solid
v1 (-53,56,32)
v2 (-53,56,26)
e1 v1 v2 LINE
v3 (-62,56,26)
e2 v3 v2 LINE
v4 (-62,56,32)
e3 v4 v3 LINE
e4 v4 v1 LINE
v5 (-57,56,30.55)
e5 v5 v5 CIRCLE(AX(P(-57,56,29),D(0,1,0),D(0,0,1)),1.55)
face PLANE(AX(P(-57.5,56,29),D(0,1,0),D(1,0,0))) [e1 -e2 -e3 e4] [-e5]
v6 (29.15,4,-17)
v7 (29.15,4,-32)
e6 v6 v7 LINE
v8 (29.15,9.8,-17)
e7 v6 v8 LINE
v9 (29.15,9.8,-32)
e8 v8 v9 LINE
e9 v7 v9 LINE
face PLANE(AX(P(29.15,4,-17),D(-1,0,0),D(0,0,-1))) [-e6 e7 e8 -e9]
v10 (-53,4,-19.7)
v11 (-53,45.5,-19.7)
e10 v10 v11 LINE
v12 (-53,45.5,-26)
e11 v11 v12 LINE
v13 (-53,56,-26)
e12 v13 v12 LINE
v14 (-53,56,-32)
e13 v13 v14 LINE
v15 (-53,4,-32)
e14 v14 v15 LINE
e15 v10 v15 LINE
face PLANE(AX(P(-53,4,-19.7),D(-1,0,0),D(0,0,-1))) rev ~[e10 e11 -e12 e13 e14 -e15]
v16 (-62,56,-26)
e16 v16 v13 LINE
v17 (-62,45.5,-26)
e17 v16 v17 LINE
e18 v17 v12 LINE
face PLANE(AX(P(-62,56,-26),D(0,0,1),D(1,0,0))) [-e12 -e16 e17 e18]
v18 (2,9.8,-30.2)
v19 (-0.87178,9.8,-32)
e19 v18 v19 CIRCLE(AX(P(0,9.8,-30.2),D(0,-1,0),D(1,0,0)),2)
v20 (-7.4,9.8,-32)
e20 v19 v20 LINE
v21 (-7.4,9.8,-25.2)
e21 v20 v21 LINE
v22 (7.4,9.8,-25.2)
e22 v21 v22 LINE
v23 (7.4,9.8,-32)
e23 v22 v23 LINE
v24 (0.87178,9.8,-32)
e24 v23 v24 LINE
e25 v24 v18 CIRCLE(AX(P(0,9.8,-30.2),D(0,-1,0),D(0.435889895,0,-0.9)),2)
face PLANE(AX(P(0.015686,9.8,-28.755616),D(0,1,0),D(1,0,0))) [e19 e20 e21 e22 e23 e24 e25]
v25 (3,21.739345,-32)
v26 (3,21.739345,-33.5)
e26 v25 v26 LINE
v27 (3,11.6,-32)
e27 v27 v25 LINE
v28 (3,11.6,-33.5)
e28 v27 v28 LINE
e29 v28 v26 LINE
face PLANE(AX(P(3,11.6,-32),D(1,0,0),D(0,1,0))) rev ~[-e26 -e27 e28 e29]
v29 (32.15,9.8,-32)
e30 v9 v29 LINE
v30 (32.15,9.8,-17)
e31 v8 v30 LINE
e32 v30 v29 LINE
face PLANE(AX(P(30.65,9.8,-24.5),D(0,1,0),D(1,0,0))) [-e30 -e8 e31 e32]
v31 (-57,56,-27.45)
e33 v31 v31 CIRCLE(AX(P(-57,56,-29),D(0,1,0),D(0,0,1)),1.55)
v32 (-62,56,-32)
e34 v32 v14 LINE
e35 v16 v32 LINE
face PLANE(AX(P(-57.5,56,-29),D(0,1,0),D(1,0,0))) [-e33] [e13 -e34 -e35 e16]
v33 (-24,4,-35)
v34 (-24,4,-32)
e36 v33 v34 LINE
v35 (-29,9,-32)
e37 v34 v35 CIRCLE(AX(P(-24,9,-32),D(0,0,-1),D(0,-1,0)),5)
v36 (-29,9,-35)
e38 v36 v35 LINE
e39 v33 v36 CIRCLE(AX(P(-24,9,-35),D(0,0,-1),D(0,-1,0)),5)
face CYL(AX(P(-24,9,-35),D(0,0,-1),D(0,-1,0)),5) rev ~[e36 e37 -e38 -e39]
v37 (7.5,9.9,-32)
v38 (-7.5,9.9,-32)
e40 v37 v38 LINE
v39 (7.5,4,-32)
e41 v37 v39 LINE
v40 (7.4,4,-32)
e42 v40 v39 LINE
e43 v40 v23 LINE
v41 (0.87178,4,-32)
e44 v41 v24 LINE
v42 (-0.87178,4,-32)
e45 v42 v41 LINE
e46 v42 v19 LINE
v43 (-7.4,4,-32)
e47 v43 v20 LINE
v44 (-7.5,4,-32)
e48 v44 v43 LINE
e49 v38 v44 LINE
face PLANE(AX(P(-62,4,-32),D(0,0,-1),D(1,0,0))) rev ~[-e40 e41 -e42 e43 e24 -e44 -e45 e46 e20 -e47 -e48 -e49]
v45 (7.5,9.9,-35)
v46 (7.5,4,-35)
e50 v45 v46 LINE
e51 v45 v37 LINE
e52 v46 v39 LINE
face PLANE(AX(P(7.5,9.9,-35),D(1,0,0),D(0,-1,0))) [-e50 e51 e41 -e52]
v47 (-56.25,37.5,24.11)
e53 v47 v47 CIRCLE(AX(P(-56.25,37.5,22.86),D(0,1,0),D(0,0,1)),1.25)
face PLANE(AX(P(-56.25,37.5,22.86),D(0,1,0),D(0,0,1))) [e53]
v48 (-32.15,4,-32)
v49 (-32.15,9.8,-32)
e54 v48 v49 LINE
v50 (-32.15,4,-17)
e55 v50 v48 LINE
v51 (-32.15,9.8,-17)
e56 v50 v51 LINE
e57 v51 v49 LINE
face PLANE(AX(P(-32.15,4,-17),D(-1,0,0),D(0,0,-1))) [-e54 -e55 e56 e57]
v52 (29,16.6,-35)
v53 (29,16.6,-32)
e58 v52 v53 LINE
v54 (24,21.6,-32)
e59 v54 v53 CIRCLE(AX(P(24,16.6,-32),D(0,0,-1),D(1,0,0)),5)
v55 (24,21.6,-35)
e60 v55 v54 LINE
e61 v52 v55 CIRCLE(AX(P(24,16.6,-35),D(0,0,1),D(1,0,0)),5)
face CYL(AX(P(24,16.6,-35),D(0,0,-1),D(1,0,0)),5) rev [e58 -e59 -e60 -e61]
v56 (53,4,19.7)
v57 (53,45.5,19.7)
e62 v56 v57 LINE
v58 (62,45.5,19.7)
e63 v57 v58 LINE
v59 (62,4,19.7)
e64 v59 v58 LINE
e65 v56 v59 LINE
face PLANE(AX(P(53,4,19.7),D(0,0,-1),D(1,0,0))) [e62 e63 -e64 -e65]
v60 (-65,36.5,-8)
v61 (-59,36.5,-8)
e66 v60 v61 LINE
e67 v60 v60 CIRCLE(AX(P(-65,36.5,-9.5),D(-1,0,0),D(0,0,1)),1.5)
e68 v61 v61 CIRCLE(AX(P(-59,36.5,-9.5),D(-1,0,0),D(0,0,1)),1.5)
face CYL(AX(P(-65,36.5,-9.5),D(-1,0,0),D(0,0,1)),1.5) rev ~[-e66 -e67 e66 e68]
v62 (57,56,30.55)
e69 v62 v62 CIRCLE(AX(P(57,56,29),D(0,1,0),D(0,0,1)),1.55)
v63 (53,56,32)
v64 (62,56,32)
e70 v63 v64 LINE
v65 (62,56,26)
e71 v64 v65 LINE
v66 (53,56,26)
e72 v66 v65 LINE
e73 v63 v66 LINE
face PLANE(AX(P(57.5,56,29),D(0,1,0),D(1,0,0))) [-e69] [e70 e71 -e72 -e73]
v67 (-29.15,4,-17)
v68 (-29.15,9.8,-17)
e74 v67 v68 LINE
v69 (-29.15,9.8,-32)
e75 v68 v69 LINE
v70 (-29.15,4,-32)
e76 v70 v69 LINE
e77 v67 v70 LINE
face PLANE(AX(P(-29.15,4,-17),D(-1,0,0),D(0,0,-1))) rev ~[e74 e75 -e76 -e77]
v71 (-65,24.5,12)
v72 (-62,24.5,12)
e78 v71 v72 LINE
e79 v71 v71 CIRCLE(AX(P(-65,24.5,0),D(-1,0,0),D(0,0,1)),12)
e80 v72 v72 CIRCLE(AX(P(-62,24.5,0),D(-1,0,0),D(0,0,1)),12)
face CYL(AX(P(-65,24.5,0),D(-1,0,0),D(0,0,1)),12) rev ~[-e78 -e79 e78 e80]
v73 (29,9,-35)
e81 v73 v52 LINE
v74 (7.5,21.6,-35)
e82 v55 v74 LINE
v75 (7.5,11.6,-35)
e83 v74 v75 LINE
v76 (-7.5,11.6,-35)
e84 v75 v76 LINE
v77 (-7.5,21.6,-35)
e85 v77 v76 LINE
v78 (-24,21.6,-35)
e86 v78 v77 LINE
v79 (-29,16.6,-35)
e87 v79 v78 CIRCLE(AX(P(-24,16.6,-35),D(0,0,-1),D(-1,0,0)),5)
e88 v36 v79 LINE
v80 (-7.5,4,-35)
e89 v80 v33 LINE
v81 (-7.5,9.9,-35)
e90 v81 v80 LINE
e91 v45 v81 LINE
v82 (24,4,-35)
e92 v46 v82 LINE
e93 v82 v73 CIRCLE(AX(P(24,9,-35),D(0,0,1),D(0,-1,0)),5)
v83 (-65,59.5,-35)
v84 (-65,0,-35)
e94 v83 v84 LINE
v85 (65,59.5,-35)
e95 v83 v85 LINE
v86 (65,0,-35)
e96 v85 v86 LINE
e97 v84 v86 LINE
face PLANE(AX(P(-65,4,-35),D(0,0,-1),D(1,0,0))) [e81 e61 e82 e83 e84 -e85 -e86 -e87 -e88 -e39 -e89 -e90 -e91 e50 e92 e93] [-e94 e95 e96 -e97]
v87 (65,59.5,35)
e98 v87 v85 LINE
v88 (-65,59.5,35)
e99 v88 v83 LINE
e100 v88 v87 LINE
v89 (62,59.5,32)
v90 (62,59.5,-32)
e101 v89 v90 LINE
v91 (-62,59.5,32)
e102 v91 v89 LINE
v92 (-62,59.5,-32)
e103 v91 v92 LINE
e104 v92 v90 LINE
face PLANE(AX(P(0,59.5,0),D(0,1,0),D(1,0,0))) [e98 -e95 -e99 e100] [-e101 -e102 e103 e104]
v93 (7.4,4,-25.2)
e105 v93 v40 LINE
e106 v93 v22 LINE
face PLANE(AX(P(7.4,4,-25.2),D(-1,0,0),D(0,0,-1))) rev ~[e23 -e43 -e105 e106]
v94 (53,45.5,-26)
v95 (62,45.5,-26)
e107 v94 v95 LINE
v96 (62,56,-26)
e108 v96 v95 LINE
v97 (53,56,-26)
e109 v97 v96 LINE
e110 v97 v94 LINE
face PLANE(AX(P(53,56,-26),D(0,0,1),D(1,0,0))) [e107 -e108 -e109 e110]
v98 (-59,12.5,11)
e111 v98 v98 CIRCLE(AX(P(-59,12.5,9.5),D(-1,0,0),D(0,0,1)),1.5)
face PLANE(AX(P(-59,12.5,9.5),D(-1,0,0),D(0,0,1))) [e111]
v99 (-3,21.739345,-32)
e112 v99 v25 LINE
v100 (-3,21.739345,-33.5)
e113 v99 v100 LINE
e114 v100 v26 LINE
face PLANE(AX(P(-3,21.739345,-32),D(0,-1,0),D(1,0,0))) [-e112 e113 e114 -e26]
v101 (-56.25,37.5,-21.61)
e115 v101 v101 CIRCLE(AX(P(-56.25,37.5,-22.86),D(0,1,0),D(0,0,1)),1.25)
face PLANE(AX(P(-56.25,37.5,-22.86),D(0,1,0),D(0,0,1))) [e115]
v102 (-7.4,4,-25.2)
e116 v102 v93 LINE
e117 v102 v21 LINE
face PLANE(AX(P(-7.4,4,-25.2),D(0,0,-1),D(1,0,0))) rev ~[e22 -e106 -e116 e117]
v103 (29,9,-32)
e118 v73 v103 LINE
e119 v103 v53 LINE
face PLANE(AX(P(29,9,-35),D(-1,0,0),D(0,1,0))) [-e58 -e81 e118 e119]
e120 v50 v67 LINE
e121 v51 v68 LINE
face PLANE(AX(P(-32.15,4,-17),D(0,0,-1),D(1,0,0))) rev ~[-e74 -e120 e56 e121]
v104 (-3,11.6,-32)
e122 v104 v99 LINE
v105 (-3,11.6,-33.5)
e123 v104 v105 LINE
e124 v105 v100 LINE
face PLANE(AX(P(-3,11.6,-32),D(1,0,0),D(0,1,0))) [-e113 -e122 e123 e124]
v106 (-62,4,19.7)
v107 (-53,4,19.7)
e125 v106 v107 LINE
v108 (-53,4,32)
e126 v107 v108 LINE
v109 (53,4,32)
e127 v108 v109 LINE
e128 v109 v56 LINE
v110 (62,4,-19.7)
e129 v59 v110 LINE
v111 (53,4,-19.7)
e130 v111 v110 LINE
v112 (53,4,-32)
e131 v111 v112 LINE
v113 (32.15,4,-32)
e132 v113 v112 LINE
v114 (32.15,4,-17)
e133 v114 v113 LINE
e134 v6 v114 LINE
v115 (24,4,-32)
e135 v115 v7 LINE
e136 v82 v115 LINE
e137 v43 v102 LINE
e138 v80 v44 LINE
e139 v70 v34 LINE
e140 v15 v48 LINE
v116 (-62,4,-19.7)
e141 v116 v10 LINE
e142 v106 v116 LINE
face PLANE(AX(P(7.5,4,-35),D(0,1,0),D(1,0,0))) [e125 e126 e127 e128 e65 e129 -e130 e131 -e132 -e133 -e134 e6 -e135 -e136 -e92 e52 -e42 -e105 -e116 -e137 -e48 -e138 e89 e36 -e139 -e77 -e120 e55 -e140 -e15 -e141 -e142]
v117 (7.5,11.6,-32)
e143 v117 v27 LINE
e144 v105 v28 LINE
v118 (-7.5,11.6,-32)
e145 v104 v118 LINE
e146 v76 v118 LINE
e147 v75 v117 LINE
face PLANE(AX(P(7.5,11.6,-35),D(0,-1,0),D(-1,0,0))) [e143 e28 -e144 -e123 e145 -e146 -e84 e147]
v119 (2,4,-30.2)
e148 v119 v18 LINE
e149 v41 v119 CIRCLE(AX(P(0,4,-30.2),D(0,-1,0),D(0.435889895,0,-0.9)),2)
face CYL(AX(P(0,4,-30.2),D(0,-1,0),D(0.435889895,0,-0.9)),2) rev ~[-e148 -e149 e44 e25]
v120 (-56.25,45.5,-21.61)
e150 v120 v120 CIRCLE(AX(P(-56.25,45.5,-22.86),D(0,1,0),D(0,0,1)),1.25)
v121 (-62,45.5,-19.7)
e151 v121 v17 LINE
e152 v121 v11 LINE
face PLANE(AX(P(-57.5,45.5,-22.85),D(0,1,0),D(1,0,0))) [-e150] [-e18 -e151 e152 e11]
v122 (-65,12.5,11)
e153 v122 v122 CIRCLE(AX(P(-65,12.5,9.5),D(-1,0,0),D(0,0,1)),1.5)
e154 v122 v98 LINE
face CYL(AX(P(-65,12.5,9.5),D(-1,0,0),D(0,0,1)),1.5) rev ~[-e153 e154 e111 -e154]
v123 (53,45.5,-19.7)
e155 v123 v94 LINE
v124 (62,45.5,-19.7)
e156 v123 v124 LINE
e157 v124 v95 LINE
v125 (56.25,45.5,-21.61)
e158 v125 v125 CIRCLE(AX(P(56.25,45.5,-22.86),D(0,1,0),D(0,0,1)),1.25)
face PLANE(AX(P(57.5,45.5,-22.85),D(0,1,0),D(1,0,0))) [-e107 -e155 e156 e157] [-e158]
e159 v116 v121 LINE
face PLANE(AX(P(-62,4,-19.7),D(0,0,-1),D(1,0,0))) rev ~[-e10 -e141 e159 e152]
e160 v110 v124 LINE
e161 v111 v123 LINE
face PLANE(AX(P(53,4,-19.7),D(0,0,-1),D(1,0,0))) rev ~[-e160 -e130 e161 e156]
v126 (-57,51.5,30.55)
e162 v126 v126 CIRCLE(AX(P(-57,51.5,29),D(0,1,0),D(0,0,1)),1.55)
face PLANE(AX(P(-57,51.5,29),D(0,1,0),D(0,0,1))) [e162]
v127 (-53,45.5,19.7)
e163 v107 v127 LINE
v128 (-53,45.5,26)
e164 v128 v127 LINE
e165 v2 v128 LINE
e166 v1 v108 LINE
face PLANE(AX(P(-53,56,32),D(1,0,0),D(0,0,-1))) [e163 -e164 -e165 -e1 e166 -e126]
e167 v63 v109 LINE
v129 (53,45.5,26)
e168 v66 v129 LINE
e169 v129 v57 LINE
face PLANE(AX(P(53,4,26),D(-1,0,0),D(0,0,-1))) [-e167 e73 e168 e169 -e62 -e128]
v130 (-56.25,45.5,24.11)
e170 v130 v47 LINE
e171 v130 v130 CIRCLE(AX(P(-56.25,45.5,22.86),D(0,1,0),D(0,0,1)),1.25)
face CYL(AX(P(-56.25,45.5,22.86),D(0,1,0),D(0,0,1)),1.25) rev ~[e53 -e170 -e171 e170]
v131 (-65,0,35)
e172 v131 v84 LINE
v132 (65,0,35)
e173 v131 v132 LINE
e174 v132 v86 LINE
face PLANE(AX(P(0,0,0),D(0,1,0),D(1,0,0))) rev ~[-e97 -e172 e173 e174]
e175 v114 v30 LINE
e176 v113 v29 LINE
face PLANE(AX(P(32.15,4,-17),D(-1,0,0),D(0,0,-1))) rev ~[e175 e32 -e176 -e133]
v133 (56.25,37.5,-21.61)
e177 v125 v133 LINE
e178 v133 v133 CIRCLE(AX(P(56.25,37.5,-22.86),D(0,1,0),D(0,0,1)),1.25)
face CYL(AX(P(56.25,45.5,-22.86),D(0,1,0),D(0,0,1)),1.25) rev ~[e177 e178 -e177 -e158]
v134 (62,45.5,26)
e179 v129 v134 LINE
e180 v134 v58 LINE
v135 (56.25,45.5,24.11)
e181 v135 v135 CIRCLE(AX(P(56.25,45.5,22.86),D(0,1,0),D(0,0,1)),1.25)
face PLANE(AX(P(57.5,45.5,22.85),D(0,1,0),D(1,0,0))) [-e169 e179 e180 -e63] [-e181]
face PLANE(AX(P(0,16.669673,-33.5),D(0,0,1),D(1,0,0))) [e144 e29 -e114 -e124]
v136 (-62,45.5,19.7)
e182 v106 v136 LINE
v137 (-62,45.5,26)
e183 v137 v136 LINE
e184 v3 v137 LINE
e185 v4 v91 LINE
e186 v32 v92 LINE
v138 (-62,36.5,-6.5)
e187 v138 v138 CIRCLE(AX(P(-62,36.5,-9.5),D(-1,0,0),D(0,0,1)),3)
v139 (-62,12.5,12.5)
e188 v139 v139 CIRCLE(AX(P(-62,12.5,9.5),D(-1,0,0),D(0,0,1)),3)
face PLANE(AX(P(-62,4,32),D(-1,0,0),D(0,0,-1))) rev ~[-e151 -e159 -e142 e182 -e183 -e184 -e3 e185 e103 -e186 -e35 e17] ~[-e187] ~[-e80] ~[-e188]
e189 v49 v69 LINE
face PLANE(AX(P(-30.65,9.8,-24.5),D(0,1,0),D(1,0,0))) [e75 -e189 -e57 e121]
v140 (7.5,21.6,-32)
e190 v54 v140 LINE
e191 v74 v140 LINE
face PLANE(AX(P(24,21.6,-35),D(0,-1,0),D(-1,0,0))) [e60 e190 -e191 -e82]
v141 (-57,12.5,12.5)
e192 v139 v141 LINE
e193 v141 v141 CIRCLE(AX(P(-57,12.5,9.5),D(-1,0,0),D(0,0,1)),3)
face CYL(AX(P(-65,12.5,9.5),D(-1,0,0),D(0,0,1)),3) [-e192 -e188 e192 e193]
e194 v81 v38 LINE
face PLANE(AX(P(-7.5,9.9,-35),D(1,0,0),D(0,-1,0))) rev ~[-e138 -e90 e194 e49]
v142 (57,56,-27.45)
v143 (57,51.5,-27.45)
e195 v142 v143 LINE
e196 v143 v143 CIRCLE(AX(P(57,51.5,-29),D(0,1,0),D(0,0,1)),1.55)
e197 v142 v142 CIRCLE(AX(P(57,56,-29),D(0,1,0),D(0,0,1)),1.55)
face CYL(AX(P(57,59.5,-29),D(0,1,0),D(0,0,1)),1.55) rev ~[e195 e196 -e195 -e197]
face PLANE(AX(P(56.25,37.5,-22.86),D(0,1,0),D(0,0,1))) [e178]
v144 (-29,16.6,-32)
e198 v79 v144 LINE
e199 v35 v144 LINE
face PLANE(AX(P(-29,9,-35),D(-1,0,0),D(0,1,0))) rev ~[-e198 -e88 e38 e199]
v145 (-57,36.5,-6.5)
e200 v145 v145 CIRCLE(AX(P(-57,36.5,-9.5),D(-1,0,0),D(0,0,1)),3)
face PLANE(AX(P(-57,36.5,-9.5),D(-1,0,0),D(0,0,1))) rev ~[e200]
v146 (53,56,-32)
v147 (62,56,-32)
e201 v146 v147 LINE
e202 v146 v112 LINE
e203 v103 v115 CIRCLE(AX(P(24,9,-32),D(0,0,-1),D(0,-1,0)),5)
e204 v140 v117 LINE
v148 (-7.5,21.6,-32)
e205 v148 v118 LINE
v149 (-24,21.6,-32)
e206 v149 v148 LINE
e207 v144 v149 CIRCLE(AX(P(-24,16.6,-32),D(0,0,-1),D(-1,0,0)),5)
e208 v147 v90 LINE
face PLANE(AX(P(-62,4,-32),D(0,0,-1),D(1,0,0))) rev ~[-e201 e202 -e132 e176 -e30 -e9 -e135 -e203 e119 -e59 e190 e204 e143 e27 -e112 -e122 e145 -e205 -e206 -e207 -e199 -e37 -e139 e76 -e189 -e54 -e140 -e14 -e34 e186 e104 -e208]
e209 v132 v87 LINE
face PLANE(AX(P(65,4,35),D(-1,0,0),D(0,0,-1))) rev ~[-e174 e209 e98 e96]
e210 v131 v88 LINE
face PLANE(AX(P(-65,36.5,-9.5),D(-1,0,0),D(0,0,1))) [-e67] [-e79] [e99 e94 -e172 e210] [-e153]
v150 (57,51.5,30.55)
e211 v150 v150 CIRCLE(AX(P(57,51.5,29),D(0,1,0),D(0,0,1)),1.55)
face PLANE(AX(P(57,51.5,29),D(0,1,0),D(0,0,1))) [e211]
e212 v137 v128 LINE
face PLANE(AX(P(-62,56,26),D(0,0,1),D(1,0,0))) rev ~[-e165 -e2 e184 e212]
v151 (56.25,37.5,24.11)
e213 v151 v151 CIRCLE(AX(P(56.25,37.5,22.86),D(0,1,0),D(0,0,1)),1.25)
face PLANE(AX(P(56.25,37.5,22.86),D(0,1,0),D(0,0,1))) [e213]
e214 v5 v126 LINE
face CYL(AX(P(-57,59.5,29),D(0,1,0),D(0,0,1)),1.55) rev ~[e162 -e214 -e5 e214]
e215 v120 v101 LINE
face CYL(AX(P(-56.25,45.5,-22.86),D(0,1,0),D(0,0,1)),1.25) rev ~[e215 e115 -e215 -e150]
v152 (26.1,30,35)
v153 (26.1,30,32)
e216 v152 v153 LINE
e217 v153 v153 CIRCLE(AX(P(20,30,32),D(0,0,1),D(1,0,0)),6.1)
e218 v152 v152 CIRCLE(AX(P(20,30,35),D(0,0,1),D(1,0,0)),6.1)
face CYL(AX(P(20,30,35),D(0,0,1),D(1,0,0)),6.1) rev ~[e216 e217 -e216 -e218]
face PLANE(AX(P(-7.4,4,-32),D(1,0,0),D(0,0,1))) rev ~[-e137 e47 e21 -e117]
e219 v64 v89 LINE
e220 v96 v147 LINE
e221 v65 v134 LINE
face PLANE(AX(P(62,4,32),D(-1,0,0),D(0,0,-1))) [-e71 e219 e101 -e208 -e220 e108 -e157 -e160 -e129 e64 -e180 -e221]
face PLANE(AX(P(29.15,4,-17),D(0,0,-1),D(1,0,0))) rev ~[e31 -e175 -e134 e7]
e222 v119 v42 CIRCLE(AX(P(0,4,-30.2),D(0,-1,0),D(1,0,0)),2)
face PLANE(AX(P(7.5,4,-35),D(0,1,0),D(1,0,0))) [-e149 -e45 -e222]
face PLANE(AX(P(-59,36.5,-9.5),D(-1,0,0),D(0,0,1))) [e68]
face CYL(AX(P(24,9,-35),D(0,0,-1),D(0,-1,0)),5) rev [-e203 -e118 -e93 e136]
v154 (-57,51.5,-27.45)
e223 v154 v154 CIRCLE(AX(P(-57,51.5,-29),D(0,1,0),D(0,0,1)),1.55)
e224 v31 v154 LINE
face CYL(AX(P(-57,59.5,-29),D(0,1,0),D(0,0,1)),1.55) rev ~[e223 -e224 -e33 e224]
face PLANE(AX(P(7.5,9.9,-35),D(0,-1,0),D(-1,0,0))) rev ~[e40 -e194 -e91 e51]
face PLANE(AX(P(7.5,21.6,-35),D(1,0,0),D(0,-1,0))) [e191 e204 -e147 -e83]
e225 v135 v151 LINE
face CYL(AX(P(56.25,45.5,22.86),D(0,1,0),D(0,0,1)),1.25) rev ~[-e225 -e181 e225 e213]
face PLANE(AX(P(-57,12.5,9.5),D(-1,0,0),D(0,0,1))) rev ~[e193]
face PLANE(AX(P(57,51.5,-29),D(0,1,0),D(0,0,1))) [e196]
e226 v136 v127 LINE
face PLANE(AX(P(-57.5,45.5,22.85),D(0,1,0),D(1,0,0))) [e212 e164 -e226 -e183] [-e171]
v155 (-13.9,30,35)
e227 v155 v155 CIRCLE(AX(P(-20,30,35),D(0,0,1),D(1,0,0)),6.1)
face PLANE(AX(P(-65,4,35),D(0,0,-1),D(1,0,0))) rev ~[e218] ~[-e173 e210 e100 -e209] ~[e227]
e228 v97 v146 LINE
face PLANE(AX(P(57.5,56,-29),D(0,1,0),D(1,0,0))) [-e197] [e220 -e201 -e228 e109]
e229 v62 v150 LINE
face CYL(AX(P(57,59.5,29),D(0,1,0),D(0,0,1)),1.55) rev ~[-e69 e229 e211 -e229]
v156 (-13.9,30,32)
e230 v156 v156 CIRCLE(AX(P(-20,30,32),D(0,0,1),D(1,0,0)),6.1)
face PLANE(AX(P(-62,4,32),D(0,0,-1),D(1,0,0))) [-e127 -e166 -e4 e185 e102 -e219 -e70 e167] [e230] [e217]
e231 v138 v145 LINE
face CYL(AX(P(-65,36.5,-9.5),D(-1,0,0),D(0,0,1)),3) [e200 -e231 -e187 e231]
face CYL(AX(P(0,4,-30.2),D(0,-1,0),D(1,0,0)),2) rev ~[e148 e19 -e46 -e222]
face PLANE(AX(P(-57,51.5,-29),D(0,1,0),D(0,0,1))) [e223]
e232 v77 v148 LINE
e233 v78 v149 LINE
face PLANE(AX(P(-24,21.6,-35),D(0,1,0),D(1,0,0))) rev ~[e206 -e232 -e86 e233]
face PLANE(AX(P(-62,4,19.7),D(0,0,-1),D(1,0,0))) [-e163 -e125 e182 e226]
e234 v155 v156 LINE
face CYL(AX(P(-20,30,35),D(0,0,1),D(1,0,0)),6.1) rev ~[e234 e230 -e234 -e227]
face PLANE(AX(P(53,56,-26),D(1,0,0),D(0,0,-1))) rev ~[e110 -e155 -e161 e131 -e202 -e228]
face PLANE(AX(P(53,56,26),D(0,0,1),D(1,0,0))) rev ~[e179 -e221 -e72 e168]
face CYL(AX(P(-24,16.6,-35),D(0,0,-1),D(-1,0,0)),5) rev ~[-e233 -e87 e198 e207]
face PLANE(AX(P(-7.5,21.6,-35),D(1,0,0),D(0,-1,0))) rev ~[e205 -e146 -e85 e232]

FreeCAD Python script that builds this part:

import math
import FreeCAD as App
import Part
import Sketcher
Q = App.Units.Quantity

doc = App.newDocument("Part")
params = doc.addObject("Spreadsheet::Sheet", "Params")
for row, (alias, value) in enumerate([
    ("sketch1_width", "130 mm"),
    ("sketch1_height", "70 mm"),
    ("pad1_length", "4 mm"),
    ("sketch2_width", "130 mm"),
    ("sketch2_width2", "124 mm"),
    ("sketch2_height", "70 mm"),
    ("sketch2_height2", "64 mm"),
    ("pad2_length", "55.5 mm"),
    ("sketch3_radius", "5 mm"),
    ("sketch3_width", "15 mm"),
    ("sketch3_height", "10 mm"),
    ("sketch3_width2", "16.5 mm"),
    ("sketch3_height2", "7.6 mm"),
    ("pocket1_length", "4.8 mm"),
    ("sketch4_radius", "2 mm"),
    ("sketch4_width", "3 mm"),
    ("sketch4_height", "15 mm"),
    ("sketch4_width2", "14.8 mm"),
    ("sketch4_height2", "6.8 mm"),
    ("pad3_length", "5.8 mm"),
    ("sketch5_width", "6 mm"),
    ("pocket2_length", "1.5 mm"),
    ("sketch6_diameter", "6 mm"),
    ("pad4_length", "8 mm"),
    ("sketch7_diameter", "24 mm"),
    ("sketch7_diameter2", "3 mm"),
    ("pocket3_length", "6 mm"),
    ("sketch8_width", "9 mm"),
    ("sketch8_height", "6 mm"),
    ("pad5_length", "52 mm"),
    ("sketch9_width", "9 mm"),
    ("sketch9_height", "6 mm"),
    ("pad6_length", "52 mm"),
    ("sketch10_diameter", "3.1 mm"),
    ("pocket4_length", "8 mm"),
    ("sketch11_diameter", "3.1 mm"),
    ("pocket5_length", "8 mm"),
    ("sketch12_width", "9 mm"),
    ("sketch12_height", "6.3 mm"),
    ("pad7_length", "41.5 mm"),
    ("sketch13_diameter", "12.2 mm"),
    ("pocket6_length", "5 mm"),
    ("sketch14_diameter", "2.5 mm"),
    ("pocket7_length", "8 mm"),
], start=1):
    params.set(f"A{row}", alias)
    params.set(f"B{row}", "=" + value)
    params.setAlias(f"B{row}", alias)

body = doc.addObject("PartDesign::Body", "Body")

# Sketch on XZ plane
sketch1 = body.newObject("Sketcher::SketchObject", "Sketch")
sketch1.AttachmentSupport = (doc.getObject("XZ_Plane"), [""])
sketch1.MapMode = "FlatFace"
sketch1.addGeometry([
    Part.LineSegment(App.Vector(-65, -35, 0), App.Vector(-65, 35, 0)),
    Part.LineSegment(App.Vector(-65, 35, 0), App.Vector(65, 35, 0)),
    Part.LineSegment(App.Vector(65, 35, 0), App.Vector(65, -35, 0)),
    Part.LineSegment(App.Vector(65, -35, 0), App.Vector(-65, -35, 0)),
], False)
sketch1.addConstraint([
    Sketcher.Constraint("Coincident", 0, 2, 1, 1),
    Sketcher.Constraint("Coincident", 1, 2, 2, 1),
    Sketcher.Constraint("Coincident", 2, 2, 3, 1),
    Sketcher.Constraint("Coincident", 3, 2, 0, 1),
    Sketcher.Constraint("Vertical", 0),
    Sketcher.Constraint("Horizontal", 1),
    Sketcher.Constraint("Vertical", 2),
    Sketcher.Constraint("Horizontal", 3),
    Sketcher.Constraint("Symmetric", 0, 2, 2, 2, -1, 1),
    Sketcher.Constraint("DistanceX", 1, 1, 1, 2, Q("130 mm")),
    Sketcher.Constraint("DistanceY", 0, 1, 0, 2, Q("70 mm")),
])
sketch1.setExpression("Constraints[9]", "Params.sketch1_width")
sketch1.setExpression("Constraints[10]", "Params.sketch1_height")
pad1 = body.newObject("PartDesign::Pad", "Pad")
pad1.Profile = sketch1
pad1.setExpression("Length", "Params.pad1_length")
pad1.Reversed = True

# Sketch on XZ plane
sketch2 = body.newObject("Sketcher::SketchObject", "Sketch001")
sketch2.AttachmentSupport = (doc.getObject("XZ_Plane"), [""])
sketch2.MapMode = "FlatFace"
sketch2.AttachmentOffset = App.Placement(App.Vector(0, 0, -4), App.Rotation())
sketch2.addGeometry([
    Part.LineSegment(App.Vector(-65, -35, 0), App.Vector(-65, 35, 0)),  # 0
    Part.LineSegment(App.Vector(-65, 35, 0), App.Vector(65, 35, 0)),  # 1
    Part.LineSegment(App.Vector(65, 35, 0), App.Vector(65, -35, 0)),  # 2
    Part.LineSegment(App.Vector(65, -35, 0), App.Vector(-65, -35, 0)),  # 3
    Part.LineSegment(App.Vector(62, 32, 0), App.Vector(-62, 32, 0)),  # 4
    Part.LineSegment(App.Vector(-62, 32, 0), App.Vector(-62, -32, 0)),  # 5
    Part.LineSegment(App.Vector(-62, -32, 0), App.Vector(62, -32, 0)),  # 6
    Part.LineSegment(App.Vector(62, -32, 0), App.Vector(62, 32, 0)),  # 7
], False)
sketch2.addConstraint([
    Sketcher.Constraint("Coincident", 0, 2, 1, 1),
    Sketcher.Constraint("Coincident", 1, 2, 2, 1),
    Sketcher.Constraint("Coincident", 2, 2, 3, 1),
    Sketcher.Constraint("Coincident", 3, 2, 0, 1),
    Sketcher.Constraint("Coincident", 4, 2, 5, 1),
    Sketcher.Constraint("Coincident", 5, 2, 6, 1),
    Sketcher.Constraint("Coincident", 6, 2, 7, 1),
    Sketcher.Constraint("Coincident", 7, 2, 4, 1),
    Sketcher.Constraint("Vertical", 0),
    Sketcher.Constraint("Horizontal", 1),
    Sketcher.Constraint("Vertical", 2),
    Sketcher.Constraint("Horizontal", 3),
    Sketcher.Constraint("Horizontal", 4),
    Sketcher.Constraint("Vertical", 5),
    Sketcher.Constraint("Horizontal", 6),
    Sketcher.Constraint("Vertical", 7),
    Sketcher.Constraint("Symmetric", 0, 2, 2, 2, -1, 1),
    Sketcher.Constraint("Symmetric", 4, 2, 6, 2, -1, 1),
    Sketcher.Constraint("DistanceX", 1, 1, 1, 2, Q("130 mm")),
    Sketcher.Constraint("DistanceX", 4, 2, 4, 1, Q("124 mm")),
    Sketcher.Constraint("DistanceY", 0, 1, 0, 2, Q("70 mm")),
    Sketcher.Constraint("DistanceY", 5, 2, 5, 1, Q("64 mm")),
])
sketch2.setExpression("Constraints[18]", "Params.sketch2_width")
sketch2.setExpression("Constraints[19]", "Params.sketch2_width2")
sketch2.setExpression("Constraints[20]", "Params.sketch2_height")
sketch2.setExpression("Constraints[21]", "Params.sketch2_height2")
pad2 = body.newObject("PartDesign::Pad", "Pad001")
pad2.Profile = sketch2
pad2.setExpression("Length", "Params.pad2_length")
pad2.Reversed = True

# Sketch on XY plane
sketch3 = body.newObject("Sketcher::SketchObject", "Sketch002")
sketch3.AttachmentSupport = (doc.getObject("XY_Plane"), [""])
sketch3.MapMode = "FlatFace"
sketch3.AttachmentOffset = App.Placement(App.Vector(0, 0, -35), App.Rotation())
sketch3.addGeometry([
    Part.LineSegment(App.Vector(7.5, 21.6, 0), App.Vector(24, 21.6, 0)),  # 0
    Part.ArcOfCircle(Part.Circle(App.Vector(24, 16.6, 0), App.Vector(0, 0, 1), 5), math.radians(0), math.radians(90)),  # 1
    Part.LineSegment(App.Vector(29, 16.6, 0), App.Vector(29, 9, 0)),  # 2
    Part.ArcOfCircle(Part.Circle(App.Vector(24, 9, 0), App.Vector(0, 0, 1), 5), math.radians(-90), math.radians(0)),  # 3
    Part.LineSegment(App.Vector(24, 4, 0), App.Vector(7.5, 4, 0)),  # 4
    Part.LineSegment(App.Vector(7.5, 4, 0), App.Vector(7.5, 9.9, 0)),  # 5
    Part.LineSegment(App.Vector(7.5, 9.9, 0), App.Vector(-7.5, 9.9, 0)),  # 6
    Part.LineSegment(App.Vector(-7.5, 9.9, 0), App.Vector(-7.5, 4, 0)),  # 7
    Part.LineSegment(App.Vector(-7.5, 4, 0), App.Vector(-24, 4, 0)),  # 8
    Part.ArcOfCircle(Part.Circle(App.Vector(-24, 9, 0), App.Vector(0, 0, 1), 5), math.radians(180), math.radians(270)),  # 9
    Part.LineSegment(App.Vector(-29, 9, 0), App.Vector(-29, 16.6, 0)),  # 10
    Part.ArcOfCircle(Part.Circle(App.Vector(-24, 16.6, 0), App.Vector(0, 0, 1), 5), math.radians(90), math.radians(180)),  # 11
    Part.LineSegment(App.Vector(-24, 21.6, 0), App.Vector(-7.5, 21.6, 0)),  # 12
    Part.LineSegment(App.Vector(-7.5, 21.6, 0), App.Vector(-7.5, 11.6, 0)),  # 13
    Part.LineSegment(App.Vector(-7.5, 11.6, 0), App.Vector(7.5, 11.6, 0)),  # 14
    Part.LineSegment(App.Vector(7.5, 11.6, 0), App.Vector(7.5, 21.6, 0)),  # 15
], False)
sketch3.addConstraint([
    Sketcher.Constraint("Tangent", 0, 2, 1, 2),
    Sketcher.Constraint("Tangent", 1, 1, 2, 1),
    Sketcher.Constraint("Tangent", 2, 2, 3, 2),
    Sketcher.Constraint("Tangent", 3, 1, 4, 1),
    Sketcher.Constraint("Coincident", 4, 2, 5, 1),
    Sketcher.Constraint("Coincident", 5, 2, 6, 1),
    Sketcher.Constraint("Coincident", 6, 2, 7, 1),
    Sketcher.Constraint("Coincident", 7, 2, 8, 1),
    Sketcher.Constraint("Tangent", 8, 2, 9, 2),
    Sketcher.Constraint("Tangent", 9, 1, 10, 1),
    Sketcher.Constraint("Tangent", 10, 2, 11, 2),
    Sketcher.Constraint("Tangent", 11, 1, 12, 1),
    Sketcher.Constraint("Coincident", 12, 2, 13, 1),
    Sketcher.Constraint("Coincident", 13, 2, 14, 1),
    Sketcher.Constraint("Coincident", 14, 2, 15, 1),
    Sketcher.Constraint("Coincident", 15, 2, 0, 1),
    Sketcher.Constraint("Horizontal", 0),
    Sketcher.Constraint("Vertical", 2),
    Sketcher.Constraint("Horizontal", 4),
    Sketcher.Constraint("Vertical", 5),
    Sketcher.Constraint("Horizontal", 6),
    Sketcher.Constraint("Vertical", 7),
    Sketcher.Constraint("Horizontal", 8),
    Sketcher.Constraint("Vertical", 10),
    Sketcher.Constraint("Horizontal", 12),
    Sketcher.Constraint("Vertical", 13),
    Sketcher.Constraint("Horizontal", 14),
    Sketcher.Constraint("Vertical", 15),
    Sketcher.Constraint("Equal", 1, 3),
    Sketcher.Constraint("Equal", 3, 9),
    Sketcher.Constraint("Equal", 9, 11),
    Sketcher.Constraint("Symmetric", 3, 3, 9, 3, -2),
    Sketcher.Constraint("Symmetric", 12, 2, 15, 2, -2),
    Sketcher.Constraint("Vertical", 7, 2, 12, 2),
    Sketcher.Constraint("Vertical", 5, 2, 14, 2),
    Sketcher.Constraint("Radius", 1, Q("5 mm")),
    Sketcher.Constraint("DistanceX", 6, 2, 6, 1, Q("15 mm")),
    Sketcher.Constraint("DistanceY", 13, 2, 13, 1, Q("10 mm")),
    Sketcher.Constraint("DistanceX", 0, 1, 0, 2, Q("16.5 mm")),
    Sketcher.Constraint("DistanceY", 2, 2, 2, 1, Q("7.6 mm")),
    Sketcher.Constraint("DistanceY", 5, 1, 5, 2, Q("5.9 mm")),
    Sketcher.Constraint("DistanceY", -1, 1, 3, 3, Q("9 mm")),
])
sketch3.setExpression("Constraints[35]", "Params.sketch3_radius")
sketch3.setExpression("Constraints[36]", "Params.sketch3_width")
sketch3.setExpression("Constraints[37]", "Params.sketch3_height")
sketch3.setExpression("Constraints[38]", "Params.sketch3_width2")
sketch3.setExpression("Constraints[39]", "Params.sketch3_height2")
pocket1 = body.newObject("PartDesign::Pocket", "Pocket")
pocket1.Profile = sketch3
pocket1.setExpression("Length", "Params.pocket1_length")
pocket1.Reversed = True

# Sketch on XZ plane
sketch4 = body.newObject("Sketcher::SketchObject", "Sketch003")
sketch4.AttachmentSupport = (doc.getObject("XZ_Plane"), [""])
sketch4.MapMode = "FlatFace"
sketch4.AttachmentOffset = App.Placement(App.Vector(0, 0, -4), App.Rotation())
sketch4.addGeometry([
    Part.LineSegment(App.Vector(-0.87178, -32, 0), App.Vector(-7.4, -32, 0)),  # 0
    Part.LineSegment(App.Vector(-7.4, -32, 0), App.Vector(-7.4, -25.2, 0)),  # 1
    Part.LineSegment(App.Vector(-7.4, -25.2, 0), App.Vector(7.4, -25.2, 0)),  # 2
    Part.LineSegment(App.Vector(7.4, -25.2, 0), App.Vector(7.4, -32, 0)),  # 3
    Part.LineSegment(App.Vector(7.4, -32, 0), App.Vector(0.87178, -32, 0)),  # 4
    Part.ArcOfCircle(Part.Circle(App.Vector(0, -30.2, 0), App.Vector(0, 0, 1), 2), math.radians(-64.158067), math.radians(0)),  # 5
    Part.ArcOfCircle(Part.Circle(App.Vector(0, -30.2, 0), App.Vector(0, 0, 1), 2), math.radians(0), math.radians(244.158067)),  # 6
    Part.LineSegment(App.Vector(-32.15, -32, 0), App.Vector(-32.15, -17, 0)),  # 7
    Part.LineSegment(App.Vector(-32.15, -17, 0), App.Vector(-29.15, -17, 0)),  # 8
    Part.LineSegment(App.Vector(-29.15, -17, 0), App.Vector(-29.15, -32, 0)),  # 9
    Part.LineSegment(App.Vector(-29.15, -32, 0), App.Vector(-32.15, -32, 0)),  # 10
    Part.LineSegment(App.Vector(29.15, -32, 0), App.Vector(29.15, -17, 0)),  # 11
    Part.LineSegment(App.Vector(29.15, -17, 0), App.Vector(32.15, -17, 0)),  # 12
    Part.LineSegment(App.Vector(32.15, -17, 0), App.Vector(32.15, -32, 0)),  # 13
    Part.LineSegment(App.Vector(32.15, -32, 0), App.Vector(29.15, -32, 0)),  # 14
], False)
sketch4.addConstraint([
    Sketcher.Constraint("Coincident", 0, 2, 1, 1),
    Sketcher.Constraint("Coincident", 1, 2, 2, 1),
    Sketcher.Constraint("Coincident", 2, 2, 3, 1),
    Sketcher.Constraint("Coincident", 3, 2, 4, 1),
    Sketcher.Constraint("Coincident", 4, 2, 5, 1),
    Sketcher.Constraint("Tangent", 5, 2, 6, 1),
    Sketcher.Constraint("Coincident", 6, 2, 0, 1),
    Sketcher.Constraint("Coincident", 7, 2, 8, 1),
    Sketcher.Constraint("Coincident", 8, 2, 9, 1),
    Sketcher.Constraint("Coincident", 9, 2, 10, 1),
    Sketcher.Constraint("Coincident", 10, 2, 7, 1),
    Sketcher.Constraint("Coincident", 11, 2, 12, 1),
    Sketcher.Constraint("Coincident", 12, 2, 13, 1),
    Sketcher.Constraint("Coincident", 13, 2, 14, 1),
    Sketcher.Constraint("Coincident", 14, 2, 11, 1),
    Sketcher.Constraint("Horizontal", 0),
    Sketcher.Constraint("Vertical", 1),
    Sketcher.Constraint("Horizontal", 2),
    Sketcher.Constraint("Vertical", 3),
    Sketcher.Constraint("Horizontal", 4),
    Sketcher.Constraint("Vertical", 7),
    Sketcher.Constraint("Horizontal", 8),
    Sketcher.Constraint("Vertical", 9),
    Sketcher.Constraint("Horizontal", 10),
    Sketcher.Constraint("Vertical", 11),
    Sketcher.Constraint("Horizontal", 12),
    Sketcher.Constraint("Vertical", 13),
    Sketcher.Constraint("Horizontal", 14),
    Sketcher.Constraint("Equal", 5, 6),
    Sketcher.Constraint("Symmetric", 0, 2, 3, 2, -2),
    Sketcher.Constraint("Symmetric", 8, 2, 11, 2, -2),
    Sketcher.Constraint("Symmetric", 10, 2, 13, 2, -2),
    Sketcher.Constraint("PointOnObject", 5, 3, -2),
    Sketcher.Constraint("Horizontal", 6, 3, 5, 2),
    Sketcher.Constraint("Horizontal", 6, 2, 9, 2),
    Sketcher.Constraint("Radius", 5, Q("2 mm")),
    Sketcher.Constraint("DistanceX", 8, 1, 8, 2, Q("3 mm")),
    Sketcher.Constraint("DistanceY", 7, 1, 7, 2, Q("15 mm")),
    Sketcher.Constraint("DistanceX", 2, 1, 2, 2, Q("14.8 mm")),
    Sketcher.Constraint("DistanceY", 1, 1, 1, 2, Q("6.8 mm")),
    Sketcher.Constraint("DistanceY", 0, 2, -1, 1, Q("32 mm")),
    Sketcher.Constraint("DistanceY", 5, 3, 1, 2, Q("5 mm")),
    Sketcher.Constraint("DistanceX", 7, 2, -1, 1, Q("32.15 mm")),
])
sketch4.setExpression("Constraints[35]", "Params.sketch4_radius")
sketch4.setExpression("Constraints[36]", "Params.sketch4_width")
sketch4.setExpression("Constraints[37]", "Params.sketch4_height")
sketch4.setExpression("Constraints[38]", "Params.sketch4_width2")
sketch4.setExpression("Constraints[39]", "Params.sketch4_height2")
pad3 = body.newObject("PartDesign::Pad", "Pad002")
pad3.Profile = sketch4
pad3.setExpression("Length", "Params.pad3_length")
pad3.Reversed = True

# Sketch on XY plane
sketch5 = body.newObject("Sketcher::SketchObject", "Sketch004")
sketch5.AttachmentSupport = (doc.getObject("XY_Plane"), [""])
sketch5.MapMode = "FlatFace"
sketch5.AttachmentOffset = App.Placement(App.Vector(0, 0, -32), App.Rotation())
sketch5.addGeometry([
    Part.LineSegment(App.Vector(-3, 21.739345, 0), App.Vector(-3, 11.6, 0)),
    Part.LineSegment(App.Vector(-3, 11.6, 0), App.Vector(3, 11.6, 0)),
    Part.LineSegment(App.Vector(3, 11.6, 0), App.Vector(3, 21.739345, 0)),
    Part.LineSegment(App.Vector(3, 21.739345, 0), App.Vector(-3, 21.739345, 0)),
], False)
sketch5.addConstraint([
    Sketcher.Constraint("Coincident", 0, 2, 1, 1),
    Sketcher.Constraint("Coincident", 1, 2, 2, 1),
    Sketcher.Constraint("Coincident", 2, 2, 3, 1),
    Sketcher.Constraint("Coincident", 3, 2, 0, 1),
    Sketcher.Constraint("Vertical", 0),
    Sketcher.Constraint("Horizontal", 1),
    Sketcher.Constraint("Vertical", 2),
    Sketcher.Constraint("Horizontal", 3),
    Sketcher.Constraint("DistanceX", 1, 1, 1, 2, Q("6 mm")),
    Sketcher.Constraint("DistanceX", 0, 2, -1, 1, Q("3 mm")),
    Sketcher.Constraint("DistanceY", -1, 1, 0, 2, Q("11.6 mm")),
    Sketcher.Constraint("DistanceY", 0, 2, 0, 1, Q("10.139345 mm")),
])
sketch5.setExpression("Constraints[8]", "Params.sketch5_width")
pocket2 = body.newObject("PartDesign::Pocket", "Pocket001")
pocket2.Profile = sketch5
pocket2.setExpression("Length", "Params.pocket2_length")

# Sketch on YZ plane
sketch6 = body.newObject("Sketcher::SketchObject", "Sketch005")
sketch6.AttachmentSupport = (doc.getObject("YZ_Plane"), [""])
sketch6.MapMode = "FlatFace"
sketch6.AttachmentOffset = App.Placement(App.Vector(0, 0, -65), App.Rotation())
sketch6.addGeometry([
    Part.Circle(App.Vector(36.5, -9.5, 0), App.Vector(0, 0, 1), 3),
    Part.Circle(App.Vector(12.5, 9.5, 0), App.Vector(0, 0, 1), 3),
], False)
sketch6.addConstraint([
    Sketcher.Constraint("Equal", 0, 1),
    Sketcher.Constraint("Diameter", 0, Q("6 mm")),
    Sketcher.Constraint("DistanceX", 1, 3, 0, 3, Q("24 mm")),
    Sketcher.Constraint("DistanceY", 0, 3, 1, 3, Q("19 mm")),
    Sketcher.Constraint("DistanceX", -1, 1, 0, 3, Q("36.5 mm")),
    Sketcher.Constraint("DistanceY", 0, 3, -1, 1, Q("9.5 mm")),
])
sketch6.setExpression("Constraints[1]", "Params.sketch6_diameter")
pad4 = body.newObject("PartDesign::Pad", "Pad003")
pad4.Profile = sketch6
pad4.setExpression("Length", "Params.pad4_length")

# Sketch on YZ plane
sketch7 = body.newObject("Sketcher::SketchObject", "Sketch006")
sketch7.AttachmentSupport = (doc.getObject("YZ_Plane"), [""])
sketch7.MapMode = "FlatFace"
sketch7.AttachmentOffset = App.Placement(App.Vector(0, 0, -65), App.Rotation())
sketch7.addGeometry([
    Part.Circle(App.Vector(24.5, 0, 0), App.Vector(0, 0, 1), 12),
    Part.Circle(App.Vector(36.5, -9.5, 0), App.Vector(0, 0, 1), 1.5),
    Part.Circle(App.Vector(12.5, 9.5, 0), App.Vector(0, 0, 1), 1.5),
], False)
sketch7.addConstraint([
    Sketcher.Constraint("Equal", 1, 2),
    Sketcher.Constraint("PointOnObject", 0, 3, -1),
    Sketcher.Constraint("Diameter", 0, Q("24 mm")),
    Sketcher.Constraint("Diameter", 1, Q("3 mm")),
    Sketcher.Constraint("DistanceX", 0, 3, 1, 3, Q("12 mm")),
    Sketcher.Constraint("DistanceX", 2, 3, 0, 3, Q("12 mm")),
    Sketcher.Constraint("DistanceY", 1, 3, 2, 3, Q("19 mm")),
    Sketcher.Constraint("DistanceX", -1, 1, 0, 3, Q("24.5 mm")),
    Sketcher.Constraint("DistanceY", 1, 3, -1, 1, Q("9.5 mm")),
])
sketch7.setExpression("Constraints[2]", "Params.sketch7_diameter")
sketch7.setExpression("Constraints[3]", "Params.sketch7_diameter2")
pocket3 = body.newObject("PartDesign::Pocket", "Pocket002")
pocket3.Profile = sketch7
pocket3.setExpression("Length", "Params.pocket3_length")
pocket3.Reversed = True

# Sketch on XZ plane
sketch8 = body.newObject("Sketcher::SketchObject", "Sketch007")
sketch8.AttachmentSupport = (doc.getObject("XZ_Plane"), [""])
sketch8.MapMode = "FlatFace"
sketch8.AttachmentOffset = App.Placement(App.Vector(0, 0, -56), App.Rotation())
sketch8.addGeometry([
    Part.LineSegment(App.Vector(-62, 26, 0), App.Vector(-62, 32, 0)),  # 0
    Part.LineSegment(App.Vector(-62, 32, 0), App.Vector(-53, 32, 0)),  # 1
    Part.LineSegment(App.Vector(-53, 32, 0), App.Vector(-53, 26, 0)),  # 2
    Part.LineSegment(App.Vector(-53, 26, 0), App.Vector(-62, 26, 0)),  # 3
    Part.LineSegment(App.Vector(53, 26, 0), App.Vector(53, 32, 0)),  # 4
    Part.LineSegment(App.Vector(53, 32, 0), App.Vector(62, 32, 0)),  # 5
    Part.LineSegment(App.Vector(62, 32, 0), App.Vector(62, 26, 0)),  # 6
    Part.LineSegment(App.Vector(62, 26, 0), App.Vector(53, 26, 0)),  # 7
], False)
sketch8.addConstraint([
    Sketcher.Constraint("Coincident", 0, 2, 1, 1),
    Sketcher.Constraint("Coincident", 1, 2, 2, 1),
    Sketcher.Constraint("Coincident", 2, 2, 3, 1),
    Sketcher.Constraint("Coincident", 3, 2, 0, 1),
    Sketcher.Constraint("Coincident", 4, 2, 5, 1),
    Sketcher.Constraint("Coincident", 5, 2, 6, 1),
    Sketcher.Constraint("Coincident", 6, 2, 7, 1),
    Sketcher.Constraint("Coincident", 7, 2, 4, 1),
    Sketcher.Constraint("Vertical", 0),
    Sketcher.Constraint("Horizontal", 1),
    Sketcher.Constraint("Vertical", 2),
    Sketcher.Constraint("Horizontal", 3),
    Sketcher.Constraint("Vertical", 4),
    Sketcher.Constraint("Horizontal", 5),
    Sketcher.Constraint("Vertical", 6),
    Sketcher.Constraint("Horizontal", 7),
    Sketcher.Constraint("Symmetric", 1, 2, 4, 2, -2),
    Sketcher.Constraint("Symmetric", 3, 2, 6, 2, -2),
    Sketcher.Constraint("DistanceX", 1, 1, 1, 2, Q("9 mm")),
    Sketcher.Constraint("DistanceY", 0, 1, 0, 2, Q("6 mm")),
    Sketcher.Constraint("DistanceX", 0, 2, -1, 1, Q("62 mm")),
    Sketcher.Constraint("DistanceY", -1, 1, 0, 2, Q("32 mm")),
])
sketch8.setExpression("Constraints[18]", "Params.sketch8_width")
sketch8.setExpression("Constraints[19]", "Params.sketch8_height")
pad5 = body.newObject("PartDesign::Pad", "Pad004")
pad5.Profile = sketch8
pad5.setExpression("Length", "Params.pad5_length")

# Sketch on XZ plane
sketch9 = body.newObject("Sketcher::SketchObject", "Sketch008")
sketch9.AttachmentSupport = (doc.getObject("XZ_Plane"), [""])
sketch9.MapMode = "FlatFace"
sketch9.AttachmentOffset = App.Placement(App.Vector(0, 0, -56), App.Rotation())
sketch9.addGeometry([
    Part.LineSegment(App.Vector(-62, -32, 0), App.Vector(-62, -26, 0)),  # 0
    Part.LineSegment(App.Vector(-62, -26, 0), App.Vector(-53, -26, 0)),  # 1
    Part.LineSegment(App.Vector(-53, -26, 0), App.Vector(-53, -32, 0)),  # 2
    Part.LineSegment(App.Vector(-53, -32, 0), App.Vector(-62, -32, 0)),  # 3
    Part.LineSegment(App.Vector(53, -32, 0), App.Vector(53, -26, 0)),  # 4
    Part.LineSegment(App.Vector(53, -26, 0), App.Vector(62, -26, 0)),  # 5
    Part.LineSegment(App.Vector(62, -26, 0), App.Vector(62, -32, 0)),  # 6
    Part.LineSegment(App.Vector(62, -32, 0), App.Vector(53, -32, 0)),  # 7
], False)
sketch9.addConstraint([
    Sketcher.Constraint("Coincident", 0, 2, 1, 1),
    Sketcher.Constraint("Coincident", 1, 2, 2, 1),
    Sketcher.Constraint("Coincident", 2, 2, 3, 1),
    Sketcher.Constraint("Coincident", 3, 2, 0, 1),
    Sketcher.Constraint("Coincident", 4, 2, 5, 1),
    Sketcher.Constraint("Coincident", 5, 2, 6, 1),
    Sketcher.Constraint("Coincident", 6, 2, 7, 1),
    Sketcher.Constraint("Coincident", 7, 2, 4, 1),
    Sketcher.Constraint("Vertical", 0),
    Sketcher.Constraint("Horizontal", 1),
    Sketcher.Constraint("Vertical", 2),
    Sketcher.Constraint("Horizontal", 3),
    Sketcher.Constraint("Vertical", 4),
    Sketcher.Constraint("Horizontal", 5),
    Sketcher.Constraint("Vertical", 6),
    Sketcher.Constraint("Horizontal", 7),
    Sketcher.Constraint("Symmetric", 1, 2, 4, 2, -2),
    Sketcher.Constraint("Symmetric", 3, 2, 6, 2, -2),
    Sketcher.Constraint("DistanceX", 1, 1, 1, 2, Q("9 mm")),
    Sketcher.Constraint("DistanceY", 0, 1, 0, 2, Q("6 mm")),
    Sketcher.Constraint("DistanceX", 0, 2, -1, 1, Q("62 mm")),
    Sketcher.Constraint("DistanceY", 0, 2, -1, 1, Q("26 mm")),
])
sketch9.setExpression("Constraints[18]", "Params.sketch9_width")
sketch9.setExpression("Constraints[19]", "Params.sketch9_height")
pad6 = body.newObject("PartDesign::Pad", "Pad005")
pad6.Profile = sketch9
pad6.setExpression("Length", "Params.pad6_length")

# Sketch on XZ plane
sketch10 = body.newObject("Sketcher::SketchObject", "Sketch009")
sketch10.AttachmentSupport = (doc.getObject("XZ_Plane"), [""])
sketch10.MapMode = "FlatFace"
sketch10.AttachmentOffset = App.Placement(App.Vector(0, 0, -59.5), App.Rotation())
sketch10.addGeometry([
    Part.Circle(App.Vector(-57, -29, 0), App.Vector(0, 0, 1), 1.55),
    Part.Circle(App.Vector(57, -29, 0), App.Vector(0, 0, 1), 1.55),
], False)
sketch10.addConstraint([
    Sketcher.Constraint("Equal", 0, 1),
    Sketcher.Constraint("Symmetric", 0, 3, 1, 3, -2),
    Sketcher.Constraint("Diameter", 0, Q("3.1 mm")),
    Sketcher.Constraint("DistanceX", 0, 3, -1, 1, Q("57 mm")),
    Sketcher.Constraint("DistanceY", 0, 3, -1, 1, Q("29 mm")),
])
sketch10.setExpression("Constraints[2]", "Params.sketch10_diameter")
pocket4 = body.newObject("PartDesign::Pocket", "Pocket003")
pocket4.Profile = sketch10
pocket4.setExpression("Length", "Params.pocket4_length")
pocket4.Reversed = True

# Sketch on XZ plane
sketch11 = body.newObject("Sketcher::SketchObject", "Sketch010")
sketch11.AttachmentSupport = (doc.getObject("XZ_Plane"), [""])
sketch11.MapMode = "FlatFace"
sketch11.AttachmentOffset = App.Placement(App.Vector(0, 0, -59.5), App.Rotation())
sketch11.addGeometry([
    Part.Circle(App.Vector(-57, 29, 0), App.Vector(0, 0, 1), 1.55),
    Part.Circle(App.Vector(57, 29, 0), App.Vector(0, 0, 1), 1.55),
], False)
sketch11.addConstraint([
    Sketcher.Constraint("Equal", 0, 1),
    Sketcher.Constraint("Symmetric", 0, 3, 1, 3, -2),
    Sketcher.Constraint("Diameter", 0, Q("3.1 mm")),
    Sketcher.Constraint("DistanceX", 0, 3, -1, 1, Q("57 mm")),
    Sketcher.Constraint("DistanceY", -1, 1, 0, 3, Q("29 mm")),
])
sketch11.setExpression("Constraints[2]", "Params.sketch11_diameter")
pocket5 = body.newObject("PartDesign::Pocket", "Pocket004")
pocket5.Profile = sketch11
pocket5.setExpression("Length", "Params.pocket5_length")
pocket5.Reversed = True

# Sketch on XZ plane
sketch12 = body.newObject("Sketcher::SketchObject", "Sketch011")
sketch12.AttachmentSupport = (doc.getObject("XZ_Plane"), [""])
sketch12.MapMode = "FlatFace"
sketch12.AttachmentOffset = App.Placement(App.Vector(0, 0, -4), App.Rotation())
sketch12.addGeometry([
    Part.LineSegment(App.Vector(-62, -26, 0), App.Vector(-62, -19.7, 0)),  # 0
    Part.LineSegment(App.Vector(-62, -19.7, 0), App.Vector(-53, -19.7, 0)),  # 1
    Part.LineSegment(App.Vector(-53, -19.7, 0), App.Vector(-53, -26, 0)),  # 2
    Part.LineSegment(App.Vector(-53, -26, 0), App.Vector(-62, -26, 0)),  # 3
    Part.LineSegment(App.Vector(-62, 19.7, 0), App.Vector(-62, 26, 0)),  # 4
    Part.LineSegment(App.Vector(-62, 26, 0), App.Vector(-53, 26, 0)),  # 5
    Part.LineSegment(App.Vector(-53, 26, 0), App.Vector(-53, 19.7, 0)),  # 6
    Part.LineSegment(App.Vector(-53, 19.7, 0), App.Vector(-62, 19.7, 0)),  # 7
    Part.LineSegment(App.Vector(53, 19.7, 0), App.Vector(53, 26, 0)),  # 8
    Part.LineSegment(App.Vector(53, 26, 0), App.Vector(62, 26, 0)),  # 9
    Part.LineSegment(App.Vector(62, 26, 0), App.Vector(62, 19.7, 0)),  # 10
    Part.LineSegment(App.Vector(62, 19.7, 0), App.Vector(53, 19.7, 0)),  # 11
    Part.LineSegment(App.Vector(53, -26, 0), App.Vector(53, -19.7, 0)),  # 12
    Part.LineSegment(App.Vector(53, -19.7, 0), App.Vector(62, -19.7, 0)),  # 13
    Part.LineSegment(App.Vector(62, -19.7, 0), App.Vector(62, -26, 0)),  # 14
    Part.LineSegment(App.Vector(62, -26, 0), App.Vector(53, -26, 0)),  # 15
], False)
sketch12.addConstraint([
    Sketcher.Constraint("Coincident", 0, 2, 1, 1),
    Sketcher.Constraint("Coincident", 1, 2, 2, 1),
    Sketcher.Constraint("Coincident", 2, 2, 3, 1),
    Sketcher.Constraint("Coincident", 3, 2, 0, 1),
    Sketcher.Constraint("Coincident", 4, 2, 5, 1),
    Sketcher.Constraint("Coincident", 5, 2, 6, 1),
    Sketcher.Constraint("Coincident", 6, 2, 7, 1),
    Sketcher.Constraint("Coincident", 7, 2, 4, 1),
    Sketcher.Constraint("Coincident", 8, 2, 9, 1),
    Sketcher.Constraint("Coincident", 9, 2, 10, 1),
    Sketcher.Constraint("Coincident", 10, 2, 11, 1),
    Sketcher.Constraint("Coincident", 11, 2, 8, 1),
    Sketcher.Constraint("Coincident", 12, 2, 13, 1),
    Sketcher.Constraint("Coincident", 13, 2, 14, 1),
    Sketcher.Constraint("Coincident", 14, 2, 15, 1),
    Sketcher.Constraint("Coincident", 15, 2, 12, 1),
    Sketcher.Constraint("Vertical", 0),
    Sketcher.Constraint("Horizontal", 1),
    Sketcher.Constraint("Vertical", 2),
    Sketcher.Constraint("Horizontal", 3),
    Sketcher.Constraint("Vertical", 4),
    Sketcher.Constraint("Horizontal", 5),
    Sketcher.Constraint("Vertical", 6),
    Sketcher.Constraint("Horizontal", 7),
    Sketcher.Constraint("Vertical", 8),
    Sketcher.Constraint("Horizontal", 9),
    Sketcher.Constraint("Vertical", 10),
    Sketcher.Constraint("Horizontal", 11),
    Sketcher.Constraint("Vertical", 12),
    Sketcher.Constraint("Horizontal", 13),
    Sketcher.Constraint("Vertical", 14),
    Sketcher.Constraint("Horizontal", 15),
    Sketcher.Constraint("Symmetric", 2, 2, 8, 2, -1, 1),
    Sketcher.Constraint("Symmetric", 0, 2, 10, 2, -1, 1),
    Sketcher.Constraint("Symmetric", 6, 2, 12, 2, -1, 1),
    Sketcher.Constraint("Symmetric", 4, 2, 14, 2, -1, 1),
    Sketcher.Constraint("Symmetric", 5, 2, 8, 2, -2),
    Sketcher.Constraint("Symmetric", 7, 2, 10, 2, -2),
    Sketcher.Constraint("DistanceX", 1, 1, 1, 2, Q("9 mm")),
    Sketcher.Constraint("DistanceY", 0, 1, 0, 2, Q("6.3 mm")),
    Sketcher.Constraint("DistanceX", 0, 2, -1, 1, Q("62 mm")),
    Sketcher.Constraint("DistanceY", 2, 2, -1, 1, Q("26 mm")),
])
sketch12.setExpression("Constraints[38]", "Params.sketch12_width")
sketch12.setExpression("Constraints[39]", "Params.sketch12_height")
pad7 = body.newObject("PartDesign::Pad", "Pad006")
pad7.Profile = sketch12
pad7.setExpression("Length", "Params.pad7_length")
pad7.Reversed = True

# Sketch on XY plane
sketch13 = body.newObject("Sketcher::SketchObject", "Sketch012")
sketch13.AttachmentSupport = (doc.getObject("XY_Plane"), [""])
sketch13.MapMode = "FlatFace"
sketch13.AttachmentOffset = App.Placement(App.Vector(0, 0, 35), App.Rotation())
sketch13.addGeometry([
    Part.Circle(App.Vector(-20, 30, 0), App.Vector(0, 0, 1), 6.1),
    Part.Circle(App.Vector(20, 30, 0), App.Vector(0, 0, 1), 6.1),
], False)
sketch13.addConstraint([
    Sketcher.Constraint("Equal", 0, 1),
    Sketcher.Constraint("Symmetric", 0, 3, 1, 3, -2),
    Sketcher.Constraint("Diameter", 0, Q("12.2 mm")),
    Sketcher.Constraint("DistanceX", 0, 3, -1, 1, Q("20 mm")),
    Sketcher.Constraint("DistanceY", -1, 1, 0, 3, Q("30 mm")),
])
sketch13.setExpression("Constraints[2]", "Params.sketch13_diameter")
pocket6 = body.newObject("PartDesign::Pocket", "Pocket005")
pocket6.Profile = sketch13
pocket6.setExpression("Length", "Params.pocket6_length")

# Sketch on XZ plane
sketch14 = body.newObject("Sketcher::SketchObject", "Sketch013")
sketch14.AttachmentSupport = (doc.getObject("XZ_Plane"), [""])
sketch14.MapMode = "FlatFace"
sketch14.AttachmentOffset = App.Placement(App.Vector(0, 0, -45.5), App.Rotation())
sketch14.addGeometry([
    Part.Circle(App.Vector(-56.25, -22.86, 0), App.Vector(0, 0, 1), 1.25),
    Part.Circle(App.Vector(56.25, -22.86, 0), App.Vector(0, 0, 1), 1.25),
    Part.Circle(App.Vector(-56.25, 22.86, 0), App.Vector(0, 0, 1), 1.25),
    Part.Circle(App.Vector(56.25, 22.86, 0), App.Vector(0, 0, 1), 1.25),
], False)
sketch14.addConstraint([
    Sketcher.Constraint("Equal", 0, 1),
    Sketcher.Constraint("Equal", 1, 2),
    Sketcher.Constraint("Equal", 2, 3),
    Sketcher.Constraint("Symmetric", 1, 3, 2, 3, -1, 1),
    Sketcher.Constraint("Symmetric", 0, 3, 3, 3, -1, 1),
    Sketcher.Constraint("Symmetric", 0, 3, 1, 3, -2),
    Sketcher.Constraint("Diameter", 0, Q("2.5 mm")),
    Sketcher.Constraint("DistanceX", 0, 3, 1, 3, Q("112.5 mm")),
    Sketcher.Constraint("DistanceY", 0, 3, -1, 1, Q("22.86 mm")),
])
sketch14.setExpression("Constraints[6]", "Params.sketch14_diameter")
pocket7 = body.newObject("PartDesign::Pocket", "Pocket006")
pocket7.Profile = sketch14
pocket7.setExpression("Length", "Params.pocket7_length")
pocket7.Reversed = True

doc.recompute()
